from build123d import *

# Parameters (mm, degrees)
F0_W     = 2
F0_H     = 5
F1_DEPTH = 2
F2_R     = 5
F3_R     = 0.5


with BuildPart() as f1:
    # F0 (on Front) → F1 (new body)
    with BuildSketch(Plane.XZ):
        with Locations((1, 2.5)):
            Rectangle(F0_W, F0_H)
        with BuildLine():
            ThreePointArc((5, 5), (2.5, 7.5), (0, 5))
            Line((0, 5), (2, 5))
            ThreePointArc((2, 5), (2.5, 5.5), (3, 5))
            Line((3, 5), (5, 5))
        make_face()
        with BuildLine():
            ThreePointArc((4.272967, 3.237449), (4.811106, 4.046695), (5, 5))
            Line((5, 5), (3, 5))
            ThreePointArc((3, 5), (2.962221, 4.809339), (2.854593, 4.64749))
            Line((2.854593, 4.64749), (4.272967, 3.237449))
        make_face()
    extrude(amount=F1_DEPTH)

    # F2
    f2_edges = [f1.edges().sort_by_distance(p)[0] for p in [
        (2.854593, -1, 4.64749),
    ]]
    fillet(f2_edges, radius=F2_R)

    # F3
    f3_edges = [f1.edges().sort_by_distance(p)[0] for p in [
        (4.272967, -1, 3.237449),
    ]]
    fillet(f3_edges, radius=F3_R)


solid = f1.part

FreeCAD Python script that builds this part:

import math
import FreeCAD as App
import Part
import Sketcher


def edges_at(feature, points):
    """Names of the edges that pass closest to the given points."""
    edges = feature.Shape.Edges
    near = lambda p: min(range(len(edges)), key=lambda i: edges[i].distToShape(Part.Vertex(*p))[0])
    return sorted({f"Edge{near(p) + 1}" for p in points})

doc = App.newDocument("Part")
body = doc.addObject("PartDesign::Body", "Body")

# Sketch on XZ plane
sketch1 = body.newObject("Sketcher::SketchObject", "Sketch")
sketch1.AttachmentSupport = (doc.getObject("XZ_Plane"), [""])
sketch1.MapMode = "FlatFace"
sketch1.addGeometry([
    Part.LineSegment(App.Vector(0, 5, 0), App.Vector(0, 0, 0)),  # 0
    Part.LineSegment(App.Vector(0, 0, 0), App.Vector(2, 0, 0)),  # 1
    Part.LineSegment(App.Vector(2, 0, 0), App.Vector(2, 5, 0)),  # 2
    Part.ArcOfCircle(Part.Circle(App.Vector(2.5, 5, 0), App.Vector(0, 0, 1), 0.5), math.radians(0), math.radians(180)),  # 3
    Part.ArcOfCircle(Part.Circle(App.Vector(2.500002, 5, 0), App.Vector(0, 0, 1), 0.499998), math.radians(-44.831358), math.radians(0)),  # 4
    Part.LineSegment(App.Vector(2.854593, 4.64749, 0), App.Vector(4.272967, 3.237449, 0)),  # 5
    Part.ArcOfCircle(Part.Circle(App.Vector(2.500006, 4.999998, 0), App.Vector(0, 0, 1), 2.499994), math.radians(-44.831267), math.radians(0.000044)),  # 6
    Part.ArcOfCircle(Part.Circle(App.Vector(2.5, 5, 0), App.Vector(0, 0, 1), 2.5), math.radians(0), math.radians(180)),  # 7
], False)
sketch1.addConstraint([
    Sketcher.Constraint("Coincident", 0, 2, 1, 1),
    Sketcher.Constraint("Coincident", 1, 2, 2, 1),
    Sketcher.Constraint("Tangent", 2, 2, 3, 2),
    Sketcher.Constraint("Tangent", 3, 1, 4, 2),
    Sketcher.Constraint("Coincident", 4, 1, 5, 1),
    Sketcher.Constraint("Coincident", 5, 2, 6, 1),
    Sketcher.Constraint("Tangent", 6, 2, 7, 1),
    Sketcher.Constraint("Tangent", 7, 2, 0, 1),
    Sketcher.Constraint("Vertical", 0),
    Sketcher.Constraint("Horizontal", 1),
    Sketcher.Constraint("Vertical", 2),
    Sketcher.Constraint("Coincident", 0, 2, -1, 1),
    Sketcher.Constraint("Coincident", 6, 3, 3, 3),
    Sketcher.Constraint("Equal", 3, 4),
    Sketcher.Constraint("Horizontal", 2, 2, 3, 1),
    Sketcher.Constraint("Horizontal", 3, 1, 6, 2),
    Sketcher.Constraint("Radius", 3, 0.5),
    Sketcher.Constraint("Radius", 7, 2.5),
    Sketcher.Constraint("DistanceX", 1, 1, 1, 2, 2.0),
    Sketcher.Constraint("DistanceY", 0, 2, 0, 1, 5.0),
    Sketcher.Constraint("DistanceY", -1, 1, 4, 1, 4.64749),
    Sketcher.Constraint("DistanceY", -1, 1, 5, 2, 3.237449),
])
pad1 = body.newObject("PartDesign::Pad", "Pad")
pad1.Profile = sketch1
pad1.Length = 2
doc.recompute()

fillet = body.newObject("PartDesign::Fillet", "Fillet")
fillet.Base = (pad1, edges_at(pad1, [(2.855, -1, 4.647)]))
fillet.Radius = 5
doc.recompute()

fillet2 = body.newObject("PartDesign::Fillet", "Fillet001")
fillet2.Base = (fillet, edges_at(fillet, [(4.273, -1, 3.237)]))
fillet2.Radius = 0.5

doc.recompute()
